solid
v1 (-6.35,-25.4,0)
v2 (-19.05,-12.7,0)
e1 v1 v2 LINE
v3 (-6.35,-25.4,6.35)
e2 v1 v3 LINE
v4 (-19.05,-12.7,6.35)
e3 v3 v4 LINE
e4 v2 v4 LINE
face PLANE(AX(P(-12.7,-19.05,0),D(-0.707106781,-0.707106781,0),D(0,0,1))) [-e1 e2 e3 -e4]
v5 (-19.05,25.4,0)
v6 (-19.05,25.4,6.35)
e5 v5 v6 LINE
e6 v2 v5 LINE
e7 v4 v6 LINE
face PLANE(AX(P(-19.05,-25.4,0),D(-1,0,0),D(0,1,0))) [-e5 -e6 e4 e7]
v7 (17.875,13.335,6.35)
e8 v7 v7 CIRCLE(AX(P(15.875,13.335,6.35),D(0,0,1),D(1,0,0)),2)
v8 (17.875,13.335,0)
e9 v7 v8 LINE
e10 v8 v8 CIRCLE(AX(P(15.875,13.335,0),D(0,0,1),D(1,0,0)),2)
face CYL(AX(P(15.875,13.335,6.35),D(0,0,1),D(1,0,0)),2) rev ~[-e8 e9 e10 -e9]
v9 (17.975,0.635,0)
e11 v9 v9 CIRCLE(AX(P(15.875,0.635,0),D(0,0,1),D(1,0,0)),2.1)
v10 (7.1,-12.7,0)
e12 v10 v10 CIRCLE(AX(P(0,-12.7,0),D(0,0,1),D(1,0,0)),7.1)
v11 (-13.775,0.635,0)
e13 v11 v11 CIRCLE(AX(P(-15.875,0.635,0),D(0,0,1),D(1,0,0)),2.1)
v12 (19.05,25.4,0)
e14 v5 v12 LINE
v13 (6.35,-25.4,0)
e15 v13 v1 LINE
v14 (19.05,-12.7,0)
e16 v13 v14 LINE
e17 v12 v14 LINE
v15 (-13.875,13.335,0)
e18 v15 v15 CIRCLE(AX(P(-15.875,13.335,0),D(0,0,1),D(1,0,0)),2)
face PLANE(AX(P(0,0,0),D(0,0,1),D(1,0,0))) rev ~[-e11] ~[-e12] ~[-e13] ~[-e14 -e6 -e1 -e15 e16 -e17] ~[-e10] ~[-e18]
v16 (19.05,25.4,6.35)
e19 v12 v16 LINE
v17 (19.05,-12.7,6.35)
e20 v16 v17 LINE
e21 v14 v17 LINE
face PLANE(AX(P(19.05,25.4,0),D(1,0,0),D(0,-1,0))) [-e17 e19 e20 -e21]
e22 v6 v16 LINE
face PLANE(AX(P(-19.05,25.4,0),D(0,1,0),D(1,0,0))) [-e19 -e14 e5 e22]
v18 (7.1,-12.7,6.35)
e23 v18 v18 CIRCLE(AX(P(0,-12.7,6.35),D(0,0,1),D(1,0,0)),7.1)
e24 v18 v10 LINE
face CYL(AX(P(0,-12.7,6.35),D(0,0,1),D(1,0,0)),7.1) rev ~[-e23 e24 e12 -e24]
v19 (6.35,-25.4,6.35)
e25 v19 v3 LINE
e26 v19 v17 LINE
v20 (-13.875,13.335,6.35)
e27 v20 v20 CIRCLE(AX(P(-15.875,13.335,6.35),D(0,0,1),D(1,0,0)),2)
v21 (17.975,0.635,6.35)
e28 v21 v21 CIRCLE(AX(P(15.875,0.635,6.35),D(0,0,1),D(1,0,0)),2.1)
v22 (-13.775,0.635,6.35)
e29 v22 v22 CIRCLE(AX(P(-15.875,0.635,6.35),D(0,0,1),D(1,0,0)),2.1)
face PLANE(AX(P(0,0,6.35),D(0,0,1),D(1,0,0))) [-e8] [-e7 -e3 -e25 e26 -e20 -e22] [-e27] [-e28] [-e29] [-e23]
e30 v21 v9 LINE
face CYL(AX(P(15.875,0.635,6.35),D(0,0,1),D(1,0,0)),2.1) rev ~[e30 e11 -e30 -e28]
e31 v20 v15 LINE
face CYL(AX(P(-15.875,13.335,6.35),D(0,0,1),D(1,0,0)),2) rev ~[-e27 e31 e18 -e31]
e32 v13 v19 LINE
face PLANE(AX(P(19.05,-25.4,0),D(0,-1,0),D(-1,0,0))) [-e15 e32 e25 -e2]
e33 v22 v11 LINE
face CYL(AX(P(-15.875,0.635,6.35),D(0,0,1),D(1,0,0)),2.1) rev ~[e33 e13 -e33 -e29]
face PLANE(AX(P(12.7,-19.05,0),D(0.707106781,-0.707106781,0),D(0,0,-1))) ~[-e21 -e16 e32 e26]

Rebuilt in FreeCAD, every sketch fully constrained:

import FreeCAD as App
import Part
import Sketcher
from FreeCAD import Vector
Q = App.Units.Quantity


def edges_at(feature, points):
    """Names of the edges that pass closest to the given points."""
    edges = feature.Shape.Edges
    near = lambda p: min(range(len(edges)), key=lambda i: edges[i].distToShape(Part.Vertex(*p))[0])
    return sorted({f"Edge{near(p) + 1}" for p in points})

doc = App.newDocument("Part")
body = doc.addObject("PartDesign::Body", "Body")

# Sketch on XY plane
sketch1 = body.newObject("Sketcher::SketchObject", "Sketch")
sketch1.AttachmentSupport = (doc.getObject("XY_Plane"), [""])
sketch1.MapMode = "FlatFace"
sketch1.addGeometry(Part.LineSegment(Vector(-19.05, -25.4, 0), Vector(19.05, -25.4, 0)), False)
sketch1.addGeometry(Part.LineSegment(Vector(19.05, -25.4, 0), Vector(19.05, 25.4, 0)), False)
sketch1.addGeometry(Part.LineSegment(Vector(19.05, 25.4, 0), Vector(-19.05, 25.4, 0)), False)
sketch1.addGeometry(Part.LineSegment(Vector(-19.05, 25.4, 0), Vector(-19.05, -25.4, 0)), False)
sketch1.addConstraint(Sketcher.Constraint("Coincident", 0, 2, 1, 1))
sketch1.addConstraint(Sketcher.Constraint("Coincident", 1, 2, 2, 1))
sketch1.addConstraint(Sketcher.Constraint("Coincident", 2, 2, 3, 1))
sketch1.addConstraint(Sketcher.Constraint("Coincident", 3, 2, 0, 1))
sketch1.addConstraint(Sketcher.Constraint("Horizontal", 0))
sketch1.addConstraint(Sketcher.Constraint("Vertical", 1))
sketch1.addConstraint(Sketcher.Constraint("Horizontal", 2))
sketch1.addConstraint(Sketcher.Constraint("Vertical", 3))
sketch1.addConstraint(Sketcher.Constraint("Symmetric", 0, 2, 2, 2, -1, 1))
sketch1.addConstraint(Sketcher.Constraint("DistanceY", 1, 1, 1, 2, Q("2 in")))
sketch1.addConstraint(Sketcher.Constraint("DistanceX", 0, 1, 0, 2, Q("1.5 in")))
pad1 = body.newObject("PartDesign::Pad", "Pad")
pad1.Profile = sketch1
pad1.Length = Q("0.25 in")
doc.recompute()

chamfer = body.newObject("PartDesign::Chamfer", "Chamfer")
chamfer.Base = (pad1, edges_at(pad1, [(19.05, -25.4, 3.175), (-19.05, -25.4, 3.175)]))
chamfer.Size = Q("0.5 in")

# Sketch on XY plane
sketch2 = body.newObject("Sketcher::SketchObject", "Sketch001")
sketch2.AttachmentSupport = (doc.getObject("XY_Plane"), [""])
sketch2.MapMode = "FlatFace"
sketch2.AttachmentOffset = App.Placement(Vector(0, 0, 0.25 * 25.4), App.Rotation())
sketch2.addGeometry(Part.Circle(Vector(0, -12.7, 0), Vector(0, 0, 1), 7.1), False)
sketch2.addGeometry(Part.Circle(Vector(-15.875, 0.635, 0), Vector(0, 0, 1), 2.1), False)
sketch2.addGeometry(Part.Circle(Vector(-15.875, 13.335, 0), Vector(0, 0, 1), 2), False)
sketch2.addGeometry(Part.Circle(Vector(15.875, 0.635, 0), Vector(0, 0, 1), 2.1), False)
sketch2.addGeometry(Part.Circle(Vector(15.875, 13.335, 0), Vector(0, 0, 1), 2), False)
sketch2.addConstraint(Sketcher.Constraint("Equal", 1, 3))
sketch2.addConstraint(Sketcher.Constraint("Equal", 2, 4))
sketch2.addConstraint(Sketcher.Constraint("Symmetric", 1, 3, 3, 3, -2))
sketch2.addConstraint(Sketcher.Constraint("Symmetric", 2, 3, 4, 3, -2))
sketch2.addConstraint(Sketcher.Constraint("PointOnObject", 0, 3, -2))
sketch2.addConstraint(Sketcher.Constraint("Vertical", 1, 3, 2, 3))
sketch2.addConstraint(Sketcher.Constraint("DistanceY", 0, 3, -1, 1, Q("0.5 in")))
sketch2.addConstraint(Sketcher.Constraint("DistanceY", 1, 3, 2, 3, Q("0.5 in")))
sketch2.addConstraint(Sketcher.Constraint("Diameter", 0, 14.2))
sketch2.addConstraint(Sketcher.Constraint("Diameter", 1, 4.2))
sketch2.addConstraint(Sketcher.Constraint("Diameter", 2, 4.0))
sketch2.addConstraint(Sketcher.Constraint("DistanceY", -1, 1, 2, 3, Q("0.525 in")))
sketch2.addConstraint(Sketcher.Constraint("DistanceX", 1, 3, 3, 3, Q("1.25 in")))
pocket1 = body.newObject("PartDesign::Pocket", "Pocket")
pocket1.Profile = sketch2
pocket1.Type = "ThroughAll"

doc.recompute()
